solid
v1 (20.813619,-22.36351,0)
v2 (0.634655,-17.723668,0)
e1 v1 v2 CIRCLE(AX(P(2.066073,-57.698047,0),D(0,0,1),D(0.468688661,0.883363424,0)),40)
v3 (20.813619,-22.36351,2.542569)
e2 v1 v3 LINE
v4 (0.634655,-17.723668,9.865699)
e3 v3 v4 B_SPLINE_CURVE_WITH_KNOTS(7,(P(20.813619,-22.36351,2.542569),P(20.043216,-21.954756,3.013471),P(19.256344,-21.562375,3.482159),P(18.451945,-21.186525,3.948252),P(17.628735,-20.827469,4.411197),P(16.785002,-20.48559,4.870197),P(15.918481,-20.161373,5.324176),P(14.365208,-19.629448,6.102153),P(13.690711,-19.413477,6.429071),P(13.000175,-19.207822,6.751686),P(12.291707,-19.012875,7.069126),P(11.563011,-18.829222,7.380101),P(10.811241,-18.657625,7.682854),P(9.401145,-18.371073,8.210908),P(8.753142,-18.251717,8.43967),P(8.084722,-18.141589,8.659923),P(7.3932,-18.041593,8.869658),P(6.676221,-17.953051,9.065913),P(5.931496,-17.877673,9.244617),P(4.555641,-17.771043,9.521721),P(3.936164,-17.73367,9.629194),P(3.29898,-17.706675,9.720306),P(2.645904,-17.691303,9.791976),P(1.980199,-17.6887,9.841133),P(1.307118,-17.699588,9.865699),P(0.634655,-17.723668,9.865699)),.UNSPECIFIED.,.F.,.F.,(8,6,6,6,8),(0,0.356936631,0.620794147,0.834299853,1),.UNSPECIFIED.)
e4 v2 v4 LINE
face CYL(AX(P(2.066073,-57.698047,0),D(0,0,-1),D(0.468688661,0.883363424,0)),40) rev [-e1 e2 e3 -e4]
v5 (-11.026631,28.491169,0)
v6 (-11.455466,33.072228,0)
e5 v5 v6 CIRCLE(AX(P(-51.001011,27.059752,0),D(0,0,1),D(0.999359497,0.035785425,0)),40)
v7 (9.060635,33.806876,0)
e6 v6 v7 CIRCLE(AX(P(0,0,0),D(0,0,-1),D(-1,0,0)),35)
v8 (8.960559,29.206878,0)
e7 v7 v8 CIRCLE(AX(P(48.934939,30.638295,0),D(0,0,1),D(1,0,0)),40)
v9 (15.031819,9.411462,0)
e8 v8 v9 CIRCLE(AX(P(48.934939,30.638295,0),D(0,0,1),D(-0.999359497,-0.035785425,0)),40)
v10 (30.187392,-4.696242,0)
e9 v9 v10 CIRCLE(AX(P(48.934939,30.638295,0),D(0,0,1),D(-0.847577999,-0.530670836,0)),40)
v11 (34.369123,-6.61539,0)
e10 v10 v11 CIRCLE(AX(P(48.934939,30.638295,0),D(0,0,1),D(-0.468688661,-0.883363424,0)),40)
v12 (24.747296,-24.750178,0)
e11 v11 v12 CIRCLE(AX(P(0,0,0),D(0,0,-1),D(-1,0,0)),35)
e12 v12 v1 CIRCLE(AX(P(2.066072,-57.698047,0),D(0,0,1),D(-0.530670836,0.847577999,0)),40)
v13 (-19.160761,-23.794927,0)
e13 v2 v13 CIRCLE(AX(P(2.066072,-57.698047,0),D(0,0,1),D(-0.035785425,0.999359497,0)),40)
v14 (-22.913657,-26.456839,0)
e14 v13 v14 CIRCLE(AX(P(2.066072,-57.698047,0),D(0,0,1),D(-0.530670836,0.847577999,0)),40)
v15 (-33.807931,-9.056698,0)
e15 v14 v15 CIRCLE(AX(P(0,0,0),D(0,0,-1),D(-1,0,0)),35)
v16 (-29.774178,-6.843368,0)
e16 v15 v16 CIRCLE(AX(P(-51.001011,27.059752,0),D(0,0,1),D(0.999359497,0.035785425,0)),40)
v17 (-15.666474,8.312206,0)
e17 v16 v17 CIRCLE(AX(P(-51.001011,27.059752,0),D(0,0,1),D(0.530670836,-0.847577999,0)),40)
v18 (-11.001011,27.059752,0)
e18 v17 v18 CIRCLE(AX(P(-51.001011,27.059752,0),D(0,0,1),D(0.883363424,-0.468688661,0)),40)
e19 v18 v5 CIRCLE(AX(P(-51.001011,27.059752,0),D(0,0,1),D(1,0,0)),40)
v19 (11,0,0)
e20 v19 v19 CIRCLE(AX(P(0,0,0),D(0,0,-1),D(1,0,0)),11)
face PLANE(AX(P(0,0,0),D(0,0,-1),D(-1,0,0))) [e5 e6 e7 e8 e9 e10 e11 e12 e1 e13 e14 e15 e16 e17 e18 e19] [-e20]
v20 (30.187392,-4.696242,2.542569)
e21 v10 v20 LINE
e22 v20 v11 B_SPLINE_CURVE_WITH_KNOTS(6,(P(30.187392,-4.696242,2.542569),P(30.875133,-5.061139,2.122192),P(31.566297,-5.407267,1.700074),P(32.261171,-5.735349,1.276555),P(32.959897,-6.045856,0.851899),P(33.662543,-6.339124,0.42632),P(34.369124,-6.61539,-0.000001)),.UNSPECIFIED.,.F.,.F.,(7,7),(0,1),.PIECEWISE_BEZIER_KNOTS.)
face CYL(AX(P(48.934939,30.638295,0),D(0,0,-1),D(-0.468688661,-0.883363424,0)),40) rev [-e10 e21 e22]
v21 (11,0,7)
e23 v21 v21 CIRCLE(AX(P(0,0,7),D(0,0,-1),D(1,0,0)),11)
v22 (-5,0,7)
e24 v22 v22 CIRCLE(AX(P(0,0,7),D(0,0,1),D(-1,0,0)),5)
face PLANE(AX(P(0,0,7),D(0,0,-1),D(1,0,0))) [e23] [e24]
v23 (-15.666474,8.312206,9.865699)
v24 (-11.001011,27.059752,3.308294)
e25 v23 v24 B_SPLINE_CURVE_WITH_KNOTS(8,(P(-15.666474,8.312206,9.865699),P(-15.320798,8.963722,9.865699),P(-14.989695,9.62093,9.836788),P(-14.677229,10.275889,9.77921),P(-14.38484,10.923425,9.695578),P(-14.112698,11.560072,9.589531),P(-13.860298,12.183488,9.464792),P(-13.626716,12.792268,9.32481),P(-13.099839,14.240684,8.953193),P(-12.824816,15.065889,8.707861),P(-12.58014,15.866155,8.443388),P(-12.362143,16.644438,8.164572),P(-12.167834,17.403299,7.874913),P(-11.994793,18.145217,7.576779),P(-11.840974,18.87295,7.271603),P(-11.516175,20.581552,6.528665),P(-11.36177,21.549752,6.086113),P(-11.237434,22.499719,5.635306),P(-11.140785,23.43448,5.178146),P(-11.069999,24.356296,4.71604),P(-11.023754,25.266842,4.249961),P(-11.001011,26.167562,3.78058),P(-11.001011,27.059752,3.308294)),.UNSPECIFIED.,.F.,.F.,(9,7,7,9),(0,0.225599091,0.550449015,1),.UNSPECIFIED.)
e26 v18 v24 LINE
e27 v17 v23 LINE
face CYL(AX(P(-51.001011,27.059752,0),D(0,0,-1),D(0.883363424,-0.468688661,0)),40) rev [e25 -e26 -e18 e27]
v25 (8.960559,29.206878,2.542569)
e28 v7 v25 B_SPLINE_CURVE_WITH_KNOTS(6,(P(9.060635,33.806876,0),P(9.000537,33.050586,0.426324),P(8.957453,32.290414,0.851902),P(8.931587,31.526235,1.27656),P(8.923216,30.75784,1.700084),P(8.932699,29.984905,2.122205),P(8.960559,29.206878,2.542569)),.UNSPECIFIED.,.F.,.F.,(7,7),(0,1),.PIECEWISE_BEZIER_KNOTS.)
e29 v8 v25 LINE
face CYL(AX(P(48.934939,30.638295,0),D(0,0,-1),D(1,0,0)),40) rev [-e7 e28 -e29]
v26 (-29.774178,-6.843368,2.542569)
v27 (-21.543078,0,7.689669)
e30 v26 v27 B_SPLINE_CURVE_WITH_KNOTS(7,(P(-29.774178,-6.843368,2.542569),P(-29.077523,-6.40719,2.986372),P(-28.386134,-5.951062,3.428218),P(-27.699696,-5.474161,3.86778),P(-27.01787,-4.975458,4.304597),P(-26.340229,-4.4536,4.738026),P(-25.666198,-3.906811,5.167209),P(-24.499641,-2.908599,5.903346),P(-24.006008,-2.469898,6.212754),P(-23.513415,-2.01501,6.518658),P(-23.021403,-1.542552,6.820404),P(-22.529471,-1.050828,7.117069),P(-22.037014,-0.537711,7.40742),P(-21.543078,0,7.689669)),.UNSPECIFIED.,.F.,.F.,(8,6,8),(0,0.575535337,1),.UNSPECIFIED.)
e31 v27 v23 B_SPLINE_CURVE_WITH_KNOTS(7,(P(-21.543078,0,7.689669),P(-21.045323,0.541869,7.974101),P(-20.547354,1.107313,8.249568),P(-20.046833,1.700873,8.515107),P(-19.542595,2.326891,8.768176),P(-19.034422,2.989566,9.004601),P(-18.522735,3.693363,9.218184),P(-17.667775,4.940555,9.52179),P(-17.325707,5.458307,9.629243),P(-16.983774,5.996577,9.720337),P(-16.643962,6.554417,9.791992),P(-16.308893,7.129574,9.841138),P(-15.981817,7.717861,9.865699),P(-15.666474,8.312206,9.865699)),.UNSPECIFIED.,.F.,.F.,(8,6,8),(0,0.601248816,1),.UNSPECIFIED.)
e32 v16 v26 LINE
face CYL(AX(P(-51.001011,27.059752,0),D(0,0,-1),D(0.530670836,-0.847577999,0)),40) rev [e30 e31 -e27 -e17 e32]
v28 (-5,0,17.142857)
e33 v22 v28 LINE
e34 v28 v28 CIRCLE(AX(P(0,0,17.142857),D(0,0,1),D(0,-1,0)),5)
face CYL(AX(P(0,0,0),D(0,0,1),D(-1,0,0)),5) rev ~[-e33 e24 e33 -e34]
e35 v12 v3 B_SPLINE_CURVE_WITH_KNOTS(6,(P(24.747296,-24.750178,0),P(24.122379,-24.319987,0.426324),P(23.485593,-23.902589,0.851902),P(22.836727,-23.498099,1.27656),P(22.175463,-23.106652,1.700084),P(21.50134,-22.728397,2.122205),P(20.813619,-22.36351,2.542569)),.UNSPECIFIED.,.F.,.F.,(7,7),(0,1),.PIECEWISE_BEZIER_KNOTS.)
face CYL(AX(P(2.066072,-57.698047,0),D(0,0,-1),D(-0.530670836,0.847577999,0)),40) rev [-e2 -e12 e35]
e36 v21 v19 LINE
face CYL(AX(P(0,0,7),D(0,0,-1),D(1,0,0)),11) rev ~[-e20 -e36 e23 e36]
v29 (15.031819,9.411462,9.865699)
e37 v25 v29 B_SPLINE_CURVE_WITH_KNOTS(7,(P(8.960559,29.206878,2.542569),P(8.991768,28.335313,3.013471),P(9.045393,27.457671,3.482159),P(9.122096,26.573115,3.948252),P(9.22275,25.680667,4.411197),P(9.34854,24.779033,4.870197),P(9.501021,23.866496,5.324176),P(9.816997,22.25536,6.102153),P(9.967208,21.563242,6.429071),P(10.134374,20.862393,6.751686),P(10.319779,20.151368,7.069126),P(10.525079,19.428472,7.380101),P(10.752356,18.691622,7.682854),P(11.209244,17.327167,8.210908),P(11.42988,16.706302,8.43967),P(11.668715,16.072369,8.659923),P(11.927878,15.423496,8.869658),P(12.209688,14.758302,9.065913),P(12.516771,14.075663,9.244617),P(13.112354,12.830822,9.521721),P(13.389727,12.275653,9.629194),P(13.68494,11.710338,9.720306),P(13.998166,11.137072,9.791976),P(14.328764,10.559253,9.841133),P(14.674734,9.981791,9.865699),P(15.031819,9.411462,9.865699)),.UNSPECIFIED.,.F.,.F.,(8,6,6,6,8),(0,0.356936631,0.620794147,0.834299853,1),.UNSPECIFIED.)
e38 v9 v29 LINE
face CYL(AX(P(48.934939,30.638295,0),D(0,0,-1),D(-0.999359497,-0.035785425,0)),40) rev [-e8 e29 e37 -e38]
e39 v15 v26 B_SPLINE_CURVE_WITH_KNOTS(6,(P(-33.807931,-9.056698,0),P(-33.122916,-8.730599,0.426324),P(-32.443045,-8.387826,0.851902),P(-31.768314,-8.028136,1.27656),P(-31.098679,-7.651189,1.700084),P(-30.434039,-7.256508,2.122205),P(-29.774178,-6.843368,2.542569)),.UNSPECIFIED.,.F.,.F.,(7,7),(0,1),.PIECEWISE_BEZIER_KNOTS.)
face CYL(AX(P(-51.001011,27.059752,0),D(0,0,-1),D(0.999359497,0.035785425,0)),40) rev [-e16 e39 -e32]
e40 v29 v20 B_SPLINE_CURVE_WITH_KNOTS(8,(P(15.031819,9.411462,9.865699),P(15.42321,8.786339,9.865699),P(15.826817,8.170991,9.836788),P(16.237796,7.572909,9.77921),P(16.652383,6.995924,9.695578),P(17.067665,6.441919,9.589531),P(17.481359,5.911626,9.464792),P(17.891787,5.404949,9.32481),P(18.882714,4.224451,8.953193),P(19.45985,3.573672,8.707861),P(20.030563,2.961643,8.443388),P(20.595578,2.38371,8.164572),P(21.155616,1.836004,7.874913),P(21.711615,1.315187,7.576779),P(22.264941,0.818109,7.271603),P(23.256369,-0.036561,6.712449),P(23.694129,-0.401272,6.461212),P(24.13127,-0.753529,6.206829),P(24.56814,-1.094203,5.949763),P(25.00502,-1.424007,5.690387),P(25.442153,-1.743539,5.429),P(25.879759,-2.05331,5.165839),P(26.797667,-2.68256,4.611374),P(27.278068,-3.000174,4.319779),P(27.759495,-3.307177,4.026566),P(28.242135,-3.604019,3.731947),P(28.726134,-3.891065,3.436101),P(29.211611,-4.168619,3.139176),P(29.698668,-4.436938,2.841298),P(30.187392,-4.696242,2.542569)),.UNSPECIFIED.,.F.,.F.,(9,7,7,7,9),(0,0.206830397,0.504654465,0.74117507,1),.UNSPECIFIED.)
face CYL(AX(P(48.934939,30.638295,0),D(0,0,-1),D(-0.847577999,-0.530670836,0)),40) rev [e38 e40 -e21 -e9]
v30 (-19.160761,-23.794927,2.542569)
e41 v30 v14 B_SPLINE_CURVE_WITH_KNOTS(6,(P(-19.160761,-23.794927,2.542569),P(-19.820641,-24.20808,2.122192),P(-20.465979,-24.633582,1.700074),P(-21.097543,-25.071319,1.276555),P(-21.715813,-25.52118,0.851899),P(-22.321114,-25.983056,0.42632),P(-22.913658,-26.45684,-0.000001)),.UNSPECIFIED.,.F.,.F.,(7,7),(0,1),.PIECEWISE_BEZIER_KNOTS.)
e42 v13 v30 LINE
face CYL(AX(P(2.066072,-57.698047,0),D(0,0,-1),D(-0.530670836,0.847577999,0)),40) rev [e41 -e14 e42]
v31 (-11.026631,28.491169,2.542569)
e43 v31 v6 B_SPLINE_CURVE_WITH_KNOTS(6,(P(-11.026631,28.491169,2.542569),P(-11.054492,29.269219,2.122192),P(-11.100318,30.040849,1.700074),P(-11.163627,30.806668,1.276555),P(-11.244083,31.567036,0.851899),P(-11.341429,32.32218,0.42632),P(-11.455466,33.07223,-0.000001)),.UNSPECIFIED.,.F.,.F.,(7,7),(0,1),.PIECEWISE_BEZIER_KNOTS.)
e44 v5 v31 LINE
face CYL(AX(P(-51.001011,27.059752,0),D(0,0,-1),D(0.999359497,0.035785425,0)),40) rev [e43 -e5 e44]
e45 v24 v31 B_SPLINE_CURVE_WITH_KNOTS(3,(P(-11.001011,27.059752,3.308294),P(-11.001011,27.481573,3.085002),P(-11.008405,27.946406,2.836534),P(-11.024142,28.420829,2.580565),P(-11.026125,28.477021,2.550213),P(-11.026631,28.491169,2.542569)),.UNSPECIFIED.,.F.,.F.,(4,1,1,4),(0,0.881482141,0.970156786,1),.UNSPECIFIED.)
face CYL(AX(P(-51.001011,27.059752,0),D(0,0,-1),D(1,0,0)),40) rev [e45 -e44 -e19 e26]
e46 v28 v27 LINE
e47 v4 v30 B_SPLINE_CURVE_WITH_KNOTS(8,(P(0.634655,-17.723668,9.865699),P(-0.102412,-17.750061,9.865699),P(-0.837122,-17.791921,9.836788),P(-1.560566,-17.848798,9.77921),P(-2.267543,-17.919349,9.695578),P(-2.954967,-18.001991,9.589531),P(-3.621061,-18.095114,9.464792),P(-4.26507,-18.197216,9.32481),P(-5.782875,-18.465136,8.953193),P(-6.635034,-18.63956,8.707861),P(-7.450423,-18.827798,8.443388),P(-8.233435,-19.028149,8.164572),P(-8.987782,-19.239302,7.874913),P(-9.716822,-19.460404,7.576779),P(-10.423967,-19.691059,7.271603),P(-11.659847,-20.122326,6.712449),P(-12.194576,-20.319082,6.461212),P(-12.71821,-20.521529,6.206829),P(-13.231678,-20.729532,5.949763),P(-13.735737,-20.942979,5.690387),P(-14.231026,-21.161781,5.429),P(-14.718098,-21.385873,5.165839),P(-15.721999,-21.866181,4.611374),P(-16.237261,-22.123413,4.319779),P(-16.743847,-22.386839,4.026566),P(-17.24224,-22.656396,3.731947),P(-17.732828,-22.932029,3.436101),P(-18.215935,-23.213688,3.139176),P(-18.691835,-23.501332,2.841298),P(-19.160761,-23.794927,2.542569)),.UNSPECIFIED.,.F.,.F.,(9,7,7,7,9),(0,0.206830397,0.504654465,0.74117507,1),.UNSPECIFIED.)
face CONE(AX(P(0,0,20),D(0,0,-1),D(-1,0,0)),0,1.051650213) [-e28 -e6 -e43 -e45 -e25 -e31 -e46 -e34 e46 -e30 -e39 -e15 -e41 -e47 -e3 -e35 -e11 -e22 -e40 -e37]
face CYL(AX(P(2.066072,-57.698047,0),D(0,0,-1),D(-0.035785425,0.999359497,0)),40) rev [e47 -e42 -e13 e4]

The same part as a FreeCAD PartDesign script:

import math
import FreeCAD as App
import Part
import Sketcher

V = App.Vector
Q = App.Units.Quantity

doc = App.newDocument("Part")
body = doc.addObject("PartDesign::Body", "Body")

# Sketch on XZ plane
sketch1 = doc.addObject("Sketcher::SketchObject", "Sketch")
body.addObject(sketch1)
sketch1.AttachmentSupport = (doc.XZ_Plane, [""])
sketch1.MapMode = "FlatFace"
sketch1.addGeometry(Part.LineSegment(V(-35, 0, 0), V(0, 0, 0)), False)
sketch1.addGeometry(Part.LineSegment(V(0, 0, 0), V(0, 20, 0)), False)
sketch1.addGeometry(Part.LineSegment(V(0, 20, 0), V(-35, 0, 0)), False)
sketch1.addConstraint(Sketcher.Constraint("Coincident", 0, 2, 1, 1))
sketch1.addConstraint(Sketcher.Constraint("Coincident", 1, 2, 2, 1))
sketch1.addConstraint(Sketcher.Constraint("Coincident", 2, 2, 0, 1))
sketch1.addConstraint(Sketcher.Constraint("Horizontal", 0))
sketch1.addConstraint(Sketcher.Constraint("Vertical", 1))
sketch1.addConstraint(Sketcher.Constraint("Coincident", 0, 2, -1, 1))
sketch1.addConstraint(Sketcher.Constraint("DistanceX", 0, 1, 0, 2, Q("35 mm")))
sketch1.addConstraint(Sketcher.Constraint("DistanceY", 1, 1, 1, 2, Q("20 mm")))
revolution = doc.addObject("PartDesign::Revolution", "Revolution")
body.addObject(revolution)
revolution.Profile = sketch1
revolution.ReferenceAxis = (sketch1, ["V_Axis"])
revolution.Angle = 360

# Sketch on XY plane
sketch2 = doc.addObject("Sketcher::SketchObject", "Sketch001")
body.addObject(sketch2)
sketch2.AttachmentSupport = (doc.XY_Plane, [""])
sketch2.MapMode = "FlatFace"
sketch2.addGeometry(Part.ArcOfCircle(Part.Circle(V(2.1, -57.7, 0), V(0, 0, 1), 40), math.radians(62), math.radians(92)), False)
sketch2.addGeometry(Part.ArcOfCircle(Part.Circle(V(2.1, -57.7, 0), V(0, 0, 1), 40), math.radians(92), math.radians(122)), False)
sketch2.addGeometry(Part.ArcOfCircle(Part.Circle(V(2.1, -57.7, 0), V(0, 0, 1), 40), math.radians(122), math.radians(422)), False)
sketch2.addGeometry(Part.ArcOfCircle(Part.Circle(V(48.9, 30.6, 0), V(0, 0, 1), 40), math.radians(-118), math.radians(0)), False)
sketch2.addGeometry(Part.ArcOfCircle(Part.Circle(V(48.9, 30.6, 0), V(0, 0, 1), 40), math.radians(0), math.radians(182)), False)
sketch2.addGeometry(Part.ArcOfCircle(Part.Circle(V(48.9, 30.6, 0), V(0, 0, 1), 40), math.radians(-178), math.radians(-148)), False)
sketch2.addGeometry(Part.ArcOfCircle(Part.Circle(V(48.9, 30.6, 0), V(0, 0, 1), 40), math.radians(-148), math.radians(-118)), False)
sketch2.addGeometry(Part.ArcOfCircle(Part.Circle(V(-51, 27.1, 0), V(0, 0, 1), 40), math.radians(2), math.radians(302)), False)
sketch2.addGeometry(Part.ArcOfCircle(Part.Circle(V(-51, 27.1, 0), V(0, 0, 1), 40), math.radians(-58), math.radians(-28)), False)
sketch2.addGeometry(Part.ArcOfCircle(Part.Circle(V(-51, 27.1, 0), V(0, 0, 1), 40), math.radians(-28), math.radians(0)), False)
sketch2.addGeometry(Part.ArcOfCircle(Part.Circle(V(-51, 27.1, 0), V(0, 0, 1), 40), math.radians(0), math.radians(2.05)), False)
sketch2.addConstraint(Sketcher.Constraint("Tangent", 0, 2, 1, 1))
sketch2.addConstraint(Sketcher.Constraint("Tangent", 1, 2, 2, 1))
sketch2.addConstraint(Sketcher.Constraint("Tangent", 2, 2, 0, 1))
sketch2.addConstraint(Sketcher.Constraint("Tangent", 3, 2, 4, 1))
sketch2.addConstraint(Sketcher.Constraint("Tangent", 4, 2, 5, 1))
sketch2.addConstraint(Sketcher.Constraint("Tangent", 5, 2, 6, 1))
sketch2.addConstraint(Sketcher.Constraint("Tangent", 6, 2, 3, 1))
sketch2.addConstraint(Sketcher.Constraint("Tangent", 7, 2, 8, 1))
sketch2.addConstraint(Sketcher.Constraint("Tangent", 8, 2, 9, 1))
sketch2.addConstraint(Sketcher.Constraint("Tangent", 9, 2, 10, 1))
sketch2.addConstraint(Sketcher.Constraint("Tangent", 10, 2, 7, 1))
sketch2.addConstraint(Sketcher.Constraint("Equal", 2, 3))
sketch2.addConstraint(Sketcher.Constraint("Equal", 3, 4))
sketch2.addConstraint(Sketcher.Constraint("Equal", 6, 7))
sketch2.addConstraint(Sketcher.Constraint("Equal", 7, 8))
sketch2.addConstraint(Sketcher.Constraint("Horizontal", 6, 3, 3, 2))
sketch2.addConstraint(Sketcher.Constraint("Horizontal", 10, 3, 9, 2))
sketch2.addConstraint(Sketcher.Constraint("Radius", 0, Q("40 mm")))
sketch2.addConstraint(Sketcher.Constraint("DistanceY", 0, 3, 7, 3, Q("84.7578 mm")))
sketch2.addConstraint(Sketcher.Constraint("DistanceX", 5, 2, 2, 2, Q("5.7818 mm")))
sketch2.addConstraint(Sketcher.Constraint("DistanceY", 0, 2, 7, 2, Q("10.8803 mm")))
sketch2.addConstraint(Sketcher.Constraint("DistanceX", -1, 1, 3, 3, Q("48.934939 mm")))
sketch2.addConstraint(Sketcher.Constraint("DistanceX", 7, 3, -1, 1, Q("51.001011 mm")))
sketch2.addConstraint(Sketcher.Constraint("DistanceX", 1, 2, -1, 1, Q("19.160761 mm")))
sketch2.addConstraint(Sketcher.Constraint("DistanceX", -1, 1, 2, 2, Q("20.813619 mm")))
sketch2.addConstraint(Sketcher.Constraint("DistanceY", 2, 2, -1, 1, Q("22.36351 mm")))
sketch2.addConstraint(Sketcher.Constraint("DistanceX", -1, 1, 4, 2, Q("8.960559 mm")))
sketch2.addConstraint(Sketcher.Constraint("DistanceY", -1, 1, 5, 2, Q("9.411462 mm")))
sketch2.addConstraint(Sketcher.Constraint("DistanceY", 6, 2, -1, 1, Q("4.696242 mm")))
sketch2.addConstraint(Sketcher.Constraint("DistanceX", 10, 2, -1, 1, Q("11.026631 mm")))
sketch2.addConstraint(Sketcher.Constraint("DistanceY", -1, 1, 10, 2, Q("28.491169 mm")))
sketch2.addConstraint(Sketcher.Constraint("DistanceY", 0, 3, 0, 2, Q("39.97438 mm")))
sketch2.addConstraint(Sketcher.Constraint("DistanceX", 8, 2, 0, 2, Q("16.30113 mm")))
pocket1 = doc.addObject("PartDesign::Pocket", "Pocket")
body.addObject(pocket1)
pocket1.Profile = sketch2
pocket1.Length = 25
pocket1.Reversed = True

# Sketch on XY plane
sketch3 = doc.addObject("Sketcher::SketchObject", "Sketch002")
body.addObject(sketch3)
sketch3.AttachmentSupport = (doc.XY_Plane, [""])
sketch3.MapMode = "FlatFace"
sketch3.addGeometry(Part.Circle(V(0, 0, 0), V(0, 0, 1), 5), False)
sketch3.addConstraint(Sketcher.Constraint("Coincident", 0, 3, -1, 1))
sketch3.addConstraint(Sketcher.Constraint("Diameter", 0, Q("10 mm")))
doc.recompute()
hole = doc.addObject("PartDesign::Hole", "Hole")
body.addObject(hole)
hole.Profile = sketch3
hole.ThreadType = "None"
hole.Diameter = 10
hole.DepthType = "ThroughAll"
hole.HoleCutType = "Counterbore"
hole.HoleCutDiameter = 22
hole.HoleCutDepth = 7
hole.Reversed = True

doc.recompute()
